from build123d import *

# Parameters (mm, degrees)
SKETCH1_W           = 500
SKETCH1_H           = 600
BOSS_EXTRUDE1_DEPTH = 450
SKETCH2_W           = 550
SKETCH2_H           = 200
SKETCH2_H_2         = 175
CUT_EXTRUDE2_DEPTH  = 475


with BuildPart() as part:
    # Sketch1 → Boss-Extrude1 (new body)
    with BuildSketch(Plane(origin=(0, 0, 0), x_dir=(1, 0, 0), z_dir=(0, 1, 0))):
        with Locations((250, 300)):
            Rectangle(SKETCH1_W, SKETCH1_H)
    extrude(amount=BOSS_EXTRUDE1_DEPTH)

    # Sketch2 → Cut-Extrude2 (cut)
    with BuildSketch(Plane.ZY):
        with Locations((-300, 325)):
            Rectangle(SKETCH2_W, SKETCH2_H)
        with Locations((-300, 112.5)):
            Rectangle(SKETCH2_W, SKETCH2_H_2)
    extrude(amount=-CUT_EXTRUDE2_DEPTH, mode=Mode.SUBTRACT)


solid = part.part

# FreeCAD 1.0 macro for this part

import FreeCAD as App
import Part
import Sketcher

V = App.Vector

doc = App.newDocument("Part")
body = doc.addObject("PartDesign::Body", "Body")

sketch1 = doc.addObject("Sketcher::SketchObject", "Sketch")
body.addObject(sketch1)
sketch1.AttachmentSupport = (doc.XZ_Plane, [""])
sketch1.MapMode = "FlatFace"
sketch1.addGeometry([
    Part.LineSegment(V(0, -600, 0), V(0, 0, 0)),
    Part.LineSegment(V(0, 0, 0), V(500, 0, 0)),
    Part.LineSegment(V(500, 0, 0), V(500, -600, 0)),
    Part.LineSegment(V(500, -600, 0), V(0, -600, 0)),
], False)
sketch1.addConstraint([
    Sketcher.Constraint("Coincident", 0, 2, 1, 1),
    Sketcher.Constraint("Coincident", 1, 2, 2, 1),
    Sketcher.Constraint("Coincident", 2, 2, 3, 1),
    Sketcher.Constraint("Coincident", 3, 2, 0, 1),
    Sketcher.Constraint("Vertical", 0),
    Sketcher.Constraint("Horizontal", 1),
    Sketcher.Constraint("Vertical", 2),
    Sketcher.Constraint("Horizontal", 3),
    Sketcher.Constraint("Coincident", 0, 2, -1, 1),
    Sketcher.Constraint("DistanceX", 1, 1, 1, 2, 500.0),
    Sketcher.Constraint("DistanceY", 0, 1, 0, 2, 600.0),
])
pad1 = doc.addObject("PartDesign::Pad", "Pad")
body.addObject(pad1)
pad1.Profile = sketch1
pad1.Length = 450
pad1.Reversed = True

sketch2 = doc.addObject("Sketcher::SketchObject", "Sketch001")
body.addObject(sketch2)
sketch2.AttachmentSupport = (doc.YZ_Plane, [""])
sketch2.MapMode = "FlatFace"
sketch2.addGeometry([
    Part.LineSegment(V(425, -575, 0), V(225, -575, 0)),
    Part.LineSegment(V(225, -575, 0), V(225, -25, 0)),
    Part.LineSegment(V(225, -25, 0), V(425, -25, 0)),
    Part.LineSegment(V(425, -25, 0), V(425, -575, 0)),
    Part.LineSegment(V(200, -575, 0), V(25, -575, 0)),
    Part.LineSegment(V(25, -575, 0), V(25, -25, 0)),
    Part.LineSegment(V(25, -25, 0), V(200, -25, 0)),
    Part.LineSegment(V(200, -25, 0), V(200, -575, 0)),
], False)
sketch2.addConstraint([
    Sketcher.Constraint("Coincident", 0, 2, 1, 1),
    Sketcher.Constraint("Coincident", 1, 2, 2, 1),
    Sketcher.Constraint("Coincident", 2, 2, 3, 1),
    Sketcher.Constraint("Coincident", 3, 2, 0, 1),
    Sketcher.Constraint("Coincident", 4, 2, 5, 1),
    Sketcher.Constraint("Coincident", 5, 2, 6, 1),
    Sketcher.Constraint("Coincident", 6, 2, 7, 1),
    Sketcher.Constraint("Coincident", 7, 2, 4, 1),
    Sketcher.Constraint("Horizontal", 0),
    Sketcher.Constraint("Vertical", 1),
    Sketcher.Constraint("Horizontal", 2),
    Sketcher.Constraint("Vertical", 3),
    Sketcher.Constraint("Horizontal", 4),
    Sketcher.Constraint("Vertical", 5),
    Sketcher.Constraint("Horizontal", 6),
    Sketcher.Constraint("Vertical", 7),
    Sketcher.Constraint("Horizontal", 3, 2, 4, 2),
    Sketcher.Constraint("Horizontal", 2, 2, 5, 2),
    Sketcher.Constraint("DistanceX", 0, 2, 0, 1, 200.0),
    Sketcher.Constraint("DistanceX", 4, 2, 4, 1, 175.0),
    Sketcher.Constraint("DistanceY", 1, 1, 1, 2, 550.0),
    Sketcher.Constraint("DistanceX", -1, 1, 0, 2, 225.0),
    Sketcher.Constraint("DistanceY", 0, 2, -1, 1, 575.0),
    Sketcher.Constraint("DistanceX", -1, 1, 4, 2, 25.0),
])
pocket1 = doc.addObject("PartDesign::Pocket", "Pocket")
body.addObject(pocket1)
pocket1.Profile = sketch2
pocket1.Length = 475
pocket1.Reversed = True

doc.recompute()
